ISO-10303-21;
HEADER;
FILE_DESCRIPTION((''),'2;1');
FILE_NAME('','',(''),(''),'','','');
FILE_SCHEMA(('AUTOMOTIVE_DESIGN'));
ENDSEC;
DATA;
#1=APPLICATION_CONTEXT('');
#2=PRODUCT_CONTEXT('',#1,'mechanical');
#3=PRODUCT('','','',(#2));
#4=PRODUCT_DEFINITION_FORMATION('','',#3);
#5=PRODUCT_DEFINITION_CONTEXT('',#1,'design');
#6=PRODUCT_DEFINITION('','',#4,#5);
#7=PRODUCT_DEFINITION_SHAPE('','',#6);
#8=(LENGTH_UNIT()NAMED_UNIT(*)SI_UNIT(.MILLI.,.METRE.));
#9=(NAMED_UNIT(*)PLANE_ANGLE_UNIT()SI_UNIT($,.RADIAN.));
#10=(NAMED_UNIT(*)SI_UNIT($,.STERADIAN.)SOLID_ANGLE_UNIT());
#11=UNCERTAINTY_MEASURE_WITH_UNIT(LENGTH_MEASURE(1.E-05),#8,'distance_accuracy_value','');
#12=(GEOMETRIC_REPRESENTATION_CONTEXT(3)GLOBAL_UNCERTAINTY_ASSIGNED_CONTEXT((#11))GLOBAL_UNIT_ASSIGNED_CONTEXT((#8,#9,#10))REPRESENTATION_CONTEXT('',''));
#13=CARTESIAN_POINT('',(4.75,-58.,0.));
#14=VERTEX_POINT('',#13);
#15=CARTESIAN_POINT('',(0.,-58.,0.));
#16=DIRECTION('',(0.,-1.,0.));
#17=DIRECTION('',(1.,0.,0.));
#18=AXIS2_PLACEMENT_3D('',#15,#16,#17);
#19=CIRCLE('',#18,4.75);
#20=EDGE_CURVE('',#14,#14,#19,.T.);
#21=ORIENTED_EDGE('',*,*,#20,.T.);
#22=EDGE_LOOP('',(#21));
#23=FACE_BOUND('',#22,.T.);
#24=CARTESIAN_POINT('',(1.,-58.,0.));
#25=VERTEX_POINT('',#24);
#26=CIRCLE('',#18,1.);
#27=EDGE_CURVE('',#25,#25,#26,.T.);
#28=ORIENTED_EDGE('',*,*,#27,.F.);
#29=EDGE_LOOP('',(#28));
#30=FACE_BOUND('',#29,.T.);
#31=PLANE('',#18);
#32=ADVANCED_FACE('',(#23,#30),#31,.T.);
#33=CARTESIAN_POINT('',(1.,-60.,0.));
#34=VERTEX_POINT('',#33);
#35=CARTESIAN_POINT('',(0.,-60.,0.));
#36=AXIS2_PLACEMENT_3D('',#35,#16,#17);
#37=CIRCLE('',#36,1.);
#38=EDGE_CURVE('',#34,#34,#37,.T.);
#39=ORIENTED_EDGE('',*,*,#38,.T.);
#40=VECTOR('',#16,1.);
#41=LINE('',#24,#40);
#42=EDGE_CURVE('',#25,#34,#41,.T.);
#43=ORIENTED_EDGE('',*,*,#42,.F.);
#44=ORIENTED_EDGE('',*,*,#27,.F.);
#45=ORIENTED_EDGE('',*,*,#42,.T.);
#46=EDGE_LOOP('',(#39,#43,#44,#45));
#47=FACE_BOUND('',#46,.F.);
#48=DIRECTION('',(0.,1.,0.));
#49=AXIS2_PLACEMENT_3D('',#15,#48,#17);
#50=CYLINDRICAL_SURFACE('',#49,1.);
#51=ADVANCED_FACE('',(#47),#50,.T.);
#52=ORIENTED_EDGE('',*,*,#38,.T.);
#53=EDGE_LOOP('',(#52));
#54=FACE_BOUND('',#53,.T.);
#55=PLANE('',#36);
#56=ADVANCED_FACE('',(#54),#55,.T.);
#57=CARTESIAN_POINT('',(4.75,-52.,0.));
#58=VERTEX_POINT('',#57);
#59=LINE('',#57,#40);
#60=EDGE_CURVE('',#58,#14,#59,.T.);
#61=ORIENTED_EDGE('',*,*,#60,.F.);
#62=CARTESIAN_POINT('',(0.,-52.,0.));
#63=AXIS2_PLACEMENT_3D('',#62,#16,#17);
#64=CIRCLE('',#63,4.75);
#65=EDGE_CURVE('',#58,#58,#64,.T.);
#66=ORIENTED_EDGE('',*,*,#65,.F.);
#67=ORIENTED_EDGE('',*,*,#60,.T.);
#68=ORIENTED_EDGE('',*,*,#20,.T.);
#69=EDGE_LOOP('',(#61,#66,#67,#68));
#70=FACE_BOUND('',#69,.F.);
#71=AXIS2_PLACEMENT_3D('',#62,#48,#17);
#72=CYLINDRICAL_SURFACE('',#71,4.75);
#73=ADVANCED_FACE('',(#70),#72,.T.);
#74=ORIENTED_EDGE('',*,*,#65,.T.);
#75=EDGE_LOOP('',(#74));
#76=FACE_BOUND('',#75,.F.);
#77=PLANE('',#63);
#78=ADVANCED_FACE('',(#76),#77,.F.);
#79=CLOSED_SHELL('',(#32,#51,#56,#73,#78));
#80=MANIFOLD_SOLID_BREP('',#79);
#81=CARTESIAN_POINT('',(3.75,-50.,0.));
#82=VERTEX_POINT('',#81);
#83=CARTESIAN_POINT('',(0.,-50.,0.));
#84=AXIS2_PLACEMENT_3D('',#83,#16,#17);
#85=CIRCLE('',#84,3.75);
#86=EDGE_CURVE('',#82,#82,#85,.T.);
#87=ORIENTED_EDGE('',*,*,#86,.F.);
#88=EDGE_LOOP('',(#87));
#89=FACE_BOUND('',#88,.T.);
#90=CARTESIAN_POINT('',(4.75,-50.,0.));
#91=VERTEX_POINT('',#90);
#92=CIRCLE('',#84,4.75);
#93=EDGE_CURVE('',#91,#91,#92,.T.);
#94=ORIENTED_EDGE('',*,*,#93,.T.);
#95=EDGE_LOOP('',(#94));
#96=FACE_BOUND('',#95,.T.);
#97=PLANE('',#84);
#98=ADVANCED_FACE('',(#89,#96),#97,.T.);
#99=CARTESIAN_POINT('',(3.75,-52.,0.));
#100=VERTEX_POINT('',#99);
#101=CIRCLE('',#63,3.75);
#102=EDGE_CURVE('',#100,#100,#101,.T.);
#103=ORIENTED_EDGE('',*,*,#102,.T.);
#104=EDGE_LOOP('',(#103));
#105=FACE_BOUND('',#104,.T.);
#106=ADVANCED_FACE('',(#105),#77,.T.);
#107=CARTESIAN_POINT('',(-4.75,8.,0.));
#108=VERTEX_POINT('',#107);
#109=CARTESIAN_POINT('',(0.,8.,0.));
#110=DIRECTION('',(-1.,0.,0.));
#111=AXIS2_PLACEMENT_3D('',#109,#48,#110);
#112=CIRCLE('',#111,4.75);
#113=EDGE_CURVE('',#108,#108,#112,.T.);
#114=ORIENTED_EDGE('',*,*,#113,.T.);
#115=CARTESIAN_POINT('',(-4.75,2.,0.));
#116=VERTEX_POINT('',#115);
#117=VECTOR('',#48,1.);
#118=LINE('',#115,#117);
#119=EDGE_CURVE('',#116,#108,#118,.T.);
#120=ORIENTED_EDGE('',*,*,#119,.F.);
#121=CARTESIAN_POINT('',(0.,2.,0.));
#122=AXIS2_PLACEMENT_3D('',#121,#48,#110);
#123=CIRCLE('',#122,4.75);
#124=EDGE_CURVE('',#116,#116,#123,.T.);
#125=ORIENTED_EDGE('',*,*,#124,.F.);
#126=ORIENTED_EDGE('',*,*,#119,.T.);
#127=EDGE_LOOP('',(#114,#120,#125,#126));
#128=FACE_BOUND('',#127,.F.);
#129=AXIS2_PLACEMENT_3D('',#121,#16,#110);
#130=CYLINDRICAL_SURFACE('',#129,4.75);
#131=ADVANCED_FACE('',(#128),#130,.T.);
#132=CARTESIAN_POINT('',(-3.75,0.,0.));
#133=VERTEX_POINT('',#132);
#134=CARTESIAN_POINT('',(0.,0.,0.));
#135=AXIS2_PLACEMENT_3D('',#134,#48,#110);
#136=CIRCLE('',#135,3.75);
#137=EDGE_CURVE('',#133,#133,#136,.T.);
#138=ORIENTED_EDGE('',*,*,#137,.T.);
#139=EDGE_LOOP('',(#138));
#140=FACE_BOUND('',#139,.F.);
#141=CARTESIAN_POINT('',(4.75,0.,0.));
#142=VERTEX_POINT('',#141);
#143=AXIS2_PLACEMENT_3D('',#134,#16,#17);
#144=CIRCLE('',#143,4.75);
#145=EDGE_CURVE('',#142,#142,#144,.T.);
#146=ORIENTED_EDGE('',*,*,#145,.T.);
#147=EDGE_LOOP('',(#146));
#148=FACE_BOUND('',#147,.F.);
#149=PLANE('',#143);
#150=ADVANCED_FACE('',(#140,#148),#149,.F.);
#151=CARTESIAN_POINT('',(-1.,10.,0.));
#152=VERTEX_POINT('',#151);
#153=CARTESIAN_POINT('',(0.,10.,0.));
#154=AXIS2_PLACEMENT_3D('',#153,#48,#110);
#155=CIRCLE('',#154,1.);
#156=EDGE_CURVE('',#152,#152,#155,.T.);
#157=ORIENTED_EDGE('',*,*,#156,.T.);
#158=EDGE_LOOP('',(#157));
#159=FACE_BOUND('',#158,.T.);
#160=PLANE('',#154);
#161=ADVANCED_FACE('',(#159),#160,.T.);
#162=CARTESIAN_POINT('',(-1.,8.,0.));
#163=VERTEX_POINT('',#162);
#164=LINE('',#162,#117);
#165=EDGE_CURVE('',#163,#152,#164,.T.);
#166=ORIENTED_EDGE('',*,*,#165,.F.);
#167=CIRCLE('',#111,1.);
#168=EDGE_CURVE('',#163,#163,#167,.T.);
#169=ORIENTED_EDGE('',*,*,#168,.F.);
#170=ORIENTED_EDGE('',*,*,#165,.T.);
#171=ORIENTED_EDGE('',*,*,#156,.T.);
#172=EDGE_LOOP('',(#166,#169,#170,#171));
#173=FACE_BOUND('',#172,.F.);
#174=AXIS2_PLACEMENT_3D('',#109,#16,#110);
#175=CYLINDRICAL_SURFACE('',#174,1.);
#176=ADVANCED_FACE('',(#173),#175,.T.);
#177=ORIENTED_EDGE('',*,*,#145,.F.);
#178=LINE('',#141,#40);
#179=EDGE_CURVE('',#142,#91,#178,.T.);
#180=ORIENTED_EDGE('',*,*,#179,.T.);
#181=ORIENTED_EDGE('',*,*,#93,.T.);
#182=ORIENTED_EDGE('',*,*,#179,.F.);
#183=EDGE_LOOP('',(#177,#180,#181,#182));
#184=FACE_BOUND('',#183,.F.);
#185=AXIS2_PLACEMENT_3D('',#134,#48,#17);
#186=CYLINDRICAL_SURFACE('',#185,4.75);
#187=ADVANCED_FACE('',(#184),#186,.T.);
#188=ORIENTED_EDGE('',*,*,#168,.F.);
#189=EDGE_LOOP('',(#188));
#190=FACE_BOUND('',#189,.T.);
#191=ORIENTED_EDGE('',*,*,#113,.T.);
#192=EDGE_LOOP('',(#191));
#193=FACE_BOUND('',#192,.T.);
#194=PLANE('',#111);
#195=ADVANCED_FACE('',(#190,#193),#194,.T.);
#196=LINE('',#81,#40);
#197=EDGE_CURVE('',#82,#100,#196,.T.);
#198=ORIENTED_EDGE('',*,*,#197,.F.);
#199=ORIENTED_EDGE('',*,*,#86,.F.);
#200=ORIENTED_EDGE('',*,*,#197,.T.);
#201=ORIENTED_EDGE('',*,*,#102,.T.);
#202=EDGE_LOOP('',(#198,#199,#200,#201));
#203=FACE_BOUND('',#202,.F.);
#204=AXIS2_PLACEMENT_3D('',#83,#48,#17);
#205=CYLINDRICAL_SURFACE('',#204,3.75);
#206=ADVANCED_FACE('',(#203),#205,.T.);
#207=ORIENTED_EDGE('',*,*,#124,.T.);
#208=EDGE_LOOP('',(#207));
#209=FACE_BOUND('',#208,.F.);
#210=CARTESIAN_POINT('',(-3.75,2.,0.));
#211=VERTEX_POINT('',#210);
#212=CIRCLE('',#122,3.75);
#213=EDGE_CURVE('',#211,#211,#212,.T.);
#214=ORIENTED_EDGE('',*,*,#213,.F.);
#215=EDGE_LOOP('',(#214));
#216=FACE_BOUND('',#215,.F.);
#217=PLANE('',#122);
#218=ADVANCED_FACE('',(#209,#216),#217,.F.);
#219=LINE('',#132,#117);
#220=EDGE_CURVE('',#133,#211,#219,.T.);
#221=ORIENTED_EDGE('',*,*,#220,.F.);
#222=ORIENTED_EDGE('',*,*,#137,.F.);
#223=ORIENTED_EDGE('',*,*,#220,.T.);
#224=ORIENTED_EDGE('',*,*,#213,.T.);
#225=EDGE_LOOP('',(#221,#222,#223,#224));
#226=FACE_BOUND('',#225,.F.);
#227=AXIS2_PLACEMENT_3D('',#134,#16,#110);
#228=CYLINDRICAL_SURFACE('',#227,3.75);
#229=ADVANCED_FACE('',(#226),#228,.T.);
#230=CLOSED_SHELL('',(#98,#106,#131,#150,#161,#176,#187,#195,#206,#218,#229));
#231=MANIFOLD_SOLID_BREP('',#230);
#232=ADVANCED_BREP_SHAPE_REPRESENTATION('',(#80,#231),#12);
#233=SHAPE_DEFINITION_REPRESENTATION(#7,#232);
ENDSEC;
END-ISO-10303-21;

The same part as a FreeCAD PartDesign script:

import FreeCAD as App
import Part
import Sketcher
from FreeCAD import Vector

doc = App.newDocument("Part")
body = doc.addObject("PartDesign::Body", "Body")

sketch1 = doc.addObject("Sketcher::SketchObject", "Sketch")
body.addObject(sketch1)
sketch1.AttachmentSupport = (doc.XZ_Plane, [""])
sketch1.MapMode = "FlatFace"
sketch1.addGeometry(Part.Circle(Vector(0, 0, 0), Vector(0, 0, 1), 4.75), False)
sketch1.addConstraint([
    Sketcher.Constraint("Coincident", 0, 3, -1, 1),
    Sketcher.Constraint("Diameter", 0, 9.5),
])
pad1 = doc.addObject("PartDesign::Pad", "Pad")
body.addObject(pad1)
pad1.Profile = sketch1
pad1.Length = 50

sketch2 = doc.addObject("Sketcher::SketchObject", "Sketch001")
body.addObject(sketch2)
sketch2.AttachmentSupport = (doc.XZ_Plane, [""])
sketch2.MapMode = "FlatFace"
sketch2.AttachmentOffset = App.Placement(Vector(0, 0, 50), App.Rotation())
sketch2.addGeometry(Part.Circle(Vector(0, 0, 0), Vector(0, 0, 1), 3.75), False)
sketch2.addConstraint([
    Sketcher.Constraint("Coincident", 0, 3, -1, 1),
    Sketcher.Constraint("Diameter", 0, 7.5),
])
pad2 = doc.addObject("PartDesign::Pad", "Pad001")
body.addObject(pad2)
pad2.Profile = sketch2
pad2.Length = 2

sketch3 = doc.addObject("Sketcher::SketchObject", "Sketch002")
body.addObject(sketch3)
sketch3.AttachmentSupport = (doc.XZ_Plane, [""])
sketch3.MapMode = "FlatFace"
sketch3.addGeometry(Part.Circle(Vector(0, 0, 0), Vector(0, 0, 1), 3.75), False)
sketch3.addConstraint([
    Sketcher.Constraint("Coincident", 0, 3, -1, 1),
    Sketcher.Constraint("Diameter", 0, 7.5),
])
pad3 = doc.addObject("PartDesign::Pad", "Pad002")
body.addObject(pad3)
pad3.Profile = sketch3
pad3.Length = 2
pad3.Reversed = True

sketch4 = doc.addObject("Sketcher::SketchObject", "Sketch003")
body.addObject(sketch4)
sketch4.AttachmentSupport = (doc.XZ_Plane, [""])
sketch4.MapMode = "FlatFace"
sketch4.AttachmentOffset = App.Placement(Vector(0, 0, -2), App.Rotation())
sketch4.addGeometry(Part.Circle(Vector(0, 0, 0), Vector(0, 0, 1), 4.75), False)
sketch4.addConstraint([
    Sketcher.Constraint("Coincident", 0, 3, -1, 1),
    Sketcher.Constraint("Diameter", 0, 9.5),
])
pad4 = doc.addObject("PartDesign::Pad", "Pad003")
body.addObject(pad4)
pad4.Profile = sketch4
pad4.Length = 6
pad4.Reversed = True

sketch5 = doc.addObject("Sketcher::SketchObject", "Sketch004")
body.addObject(sketch5)
sketch5.AttachmentSupport = (doc.XZ_Plane, [""])
sketch5.MapMode = "FlatFace"
sketch5.AttachmentOffset = App.Placement(Vector(0, 0, -8), App.Rotation())
sketch5.addGeometry(Part.Circle(Vector(0, 0, 0), Vector(0, 0, 1), 1), False)
sketch5.addConstraint([
    Sketcher.Constraint("Coincident", 0, 3, -1, 1),
    Sketcher.Constraint("Diameter", 0, 2.0),
])
pad5 = doc.addObject("PartDesign::Pad", "Pad004")
body.addObject(pad5)
pad5.Profile = sketch5
pad5.Length = 2
pad5.Reversed = True
body2 = doc.addObject("PartDesign::Body", "Body001")

sketch6 = doc.addObject("Sketcher::SketchObject", "Sketch005")
body2.addObject(sketch6)
sketch6.AttachmentSupport = (doc.getObject("XZ_Plane001"), [""])
sketch6.MapMode = "FlatFace"
sketch6.AttachmentOffset = App.Placement(Vector(0, 0, 52), App.Rotation())
sketch6.addGeometry(Part.Circle(Vector(0, 0, 0), Vector(0, 0, 1), 4.75), False)
sketch6.addConstraint([
    Sketcher.Constraint("Coincident", 0, 3, -1, 1),
    Sketcher.Constraint("Diameter", 0, 9.5),
])
pad6 = doc.addObject("PartDesign::Pad", "Pad005")
body2.addObject(pad6)
pad6.Profile = sketch6
pad6.Length = 6

sketch7 = doc.addObject("Sketcher::SketchObject", "Sketch006")
body2.addObject(sketch7)
sketch7.AttachmentSupport = (doc.getObject("XZ_Plane001"), [""])
sketch7.MapMode = "FlatFace"
sketch7.AttachmentOffset = App.Placement(Vector(0, 0, 58), App.Rotation())
sketch7.addGeometry(Part.Circle(Vector(0, 0, 0), Vector(0, 0, 1), 1), False)
sketch7.addConstraint([
    Sketcher.Constraint("Coincident", 0, 3, -1, 1),
    Sketcher.Constraint("Diameter", 0, 2.0),
])
pad7 = doc.addObject("PartDesign::Pad", "Pad006")
body2.addObject(pad7)
pad7.Profile = sketch7
pad7.Length = 2

doc.recompute()
